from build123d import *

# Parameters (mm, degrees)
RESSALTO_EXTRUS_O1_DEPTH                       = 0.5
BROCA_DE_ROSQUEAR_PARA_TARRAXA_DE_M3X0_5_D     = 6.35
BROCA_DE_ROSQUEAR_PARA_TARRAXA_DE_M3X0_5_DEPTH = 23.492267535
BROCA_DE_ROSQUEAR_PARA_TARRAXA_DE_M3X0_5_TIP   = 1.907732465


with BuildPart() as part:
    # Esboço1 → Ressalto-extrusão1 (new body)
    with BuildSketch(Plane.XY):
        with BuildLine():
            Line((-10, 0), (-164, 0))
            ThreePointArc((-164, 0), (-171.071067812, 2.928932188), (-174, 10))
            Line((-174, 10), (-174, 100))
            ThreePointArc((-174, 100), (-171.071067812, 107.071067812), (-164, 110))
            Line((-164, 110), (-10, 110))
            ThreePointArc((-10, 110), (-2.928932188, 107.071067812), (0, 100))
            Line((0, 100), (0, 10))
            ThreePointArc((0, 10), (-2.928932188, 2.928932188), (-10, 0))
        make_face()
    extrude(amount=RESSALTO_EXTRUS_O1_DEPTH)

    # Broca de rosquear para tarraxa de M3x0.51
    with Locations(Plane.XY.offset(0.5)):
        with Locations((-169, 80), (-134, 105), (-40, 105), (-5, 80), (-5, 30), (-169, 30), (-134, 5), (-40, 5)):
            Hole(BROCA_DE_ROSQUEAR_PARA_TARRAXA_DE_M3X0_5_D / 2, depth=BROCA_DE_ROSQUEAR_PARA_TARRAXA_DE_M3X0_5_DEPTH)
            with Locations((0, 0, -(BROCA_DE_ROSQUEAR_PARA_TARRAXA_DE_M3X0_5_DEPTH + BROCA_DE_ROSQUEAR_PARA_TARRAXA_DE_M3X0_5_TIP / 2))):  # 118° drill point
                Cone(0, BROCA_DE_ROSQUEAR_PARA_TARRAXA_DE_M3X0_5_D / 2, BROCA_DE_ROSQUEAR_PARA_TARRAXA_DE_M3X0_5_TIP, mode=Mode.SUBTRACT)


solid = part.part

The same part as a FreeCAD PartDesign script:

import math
import FreeCAD as App
import Part
import Sketcher

V = App.Vector

doc = App.newDocument("Part")
body = doc.addObject("PartDesign::Body", "Body")

# Sketch on XY plane
sketch1 = body.newObject("Sketcher::SketchObject", "Sketch")
sketch1.AttachmentSupport = (doc.getObject("XY_Plane"), [""])
sketch1.MapMode = "FlatFace"
sketch1.addGeometry([
    Part.LineSegment(V(-164, 0, 0), V(-10, 0, 0)),  # 0
    Part.ArcOfCircle(Part.Circle(V(-10, 10, 0), V(0, 0, 1), 10), math.radians(-90), math.radians(0)),  # 1
    Part.LineSegment(V(0, 10, 0), V(0, 100, 0)),  # 2
    Part.ArcOfCircle(Part.Circle(V(-10, 100, 0), V(0, 0, 1), 10), math.radians(0), math.radians(90)),  # 3
    Part.LineSegment(V(-10, 110, 0), V(-164, 110, 0)),  # 4
    Part.ArcOfCircle(Part.Circle(V(-164, 100, 0), V(0, 0, 1), 10), math.radians(90), math.radians(180)),  # 5
    Part.LineSegment(V(-174, 100, 0), V(-174, 10, 0)),  # 6
    Part.ArcOfCircle(Part.Circle(V(-164, 10, 0), V(0, 0, 1), 10), math.radians(180), math.radians(270)),  # 7
], False)
sketch1.addConstraint([
    Sketcher.Constraint("Tangent", 0, 2, 1, 1),
    Sketcher.Constraint("Tangent", 1, 2, 2, 1),
    Sketcher.Constraint("Tangent", 2, 2, 3, 1),
    Sketcher.Constraint("Tangent", 3, 2, 4, 1),
    Sketcher.Constraint("Tangent", 4, 2, 5, 1),
    Sketcher.Constraint("Tangent", 5, 2, 6, 1),
    Sketcher.Constraint("Tangent", 6, 2, 7, 1),
    Sketcher.Constraint("Tangent", 7, 2, 0, 1),
    Sketcher.Constraint("Horizontal", 0),
    Sketcher.Constraint("Vertical", 2),
    Sketcher.Constraint("Horizontal", 4),
    Sketcher.Constraint("Vertical", 6),
    Sketcher.Constraint("Equal", 1, 3),
    Sketcher.Constraint("Equal", 3, 5),
    Sketcher.Constraint("Equal", 5, 7),
    Sketcher.Constraint("PointOnObject", 0, 2, -1),
    Sketcher.Constraint("PointOnObject", 1, 2, -2),
    Sketcher.Constraint("Radius", 1, 10.0),
    Sketcher.Constraint("DistanceX", 0, 1, 0, 2, 154.0),
    Sketcher.Constraint("DistanceY", 2, 1, 2, 2, 90.0),
])
pad1 = body.newObject("PartDesign::Pad", "Pad")
pad1.Profile = sketch1
pad1.Length = 0.5

# Sketch on XY plane
sketch2 = body.newObject("Sketcher::SketchObject", "Sketch001")
sketch2.AttachmentSupport = (doc.getObject("XY_Plane"), [""])
sketch2.MapMode = "FlatFace"
sketch2.AttachmentOffset = App.Placement(V(0, 0, 0.5), App.Rotation())
sketch2.addGeometry([
    Part.Circle(V(-169, 80, 0), V(0, 0, 1), 3.175),  # 0
    Part.Circle(V(-134, 105, 0), V(0, 0, 1), 3.175),  # 1
    Part.Circle(V(-40, 105, 0), V(0, 0, 1), 3.175),  # 2
    Part.Circle(V(-5, 80, 0), V(0, 0, 1), 3.175),  # 3
    Part.Circle(V(-5, 30, 0), V(0, 0, 1), 3.175),  # 4
    Part.Circle(V(-169, 30, 0), V(0, 0, 1), 3.175),  # 5
    Part.Circle(V(-134, 5, 0), V(0, 0, 1), 3.175),  # 6
    Part.Circle(V(-40, 5, 0), V(0, 0, 1), 3.175),  # 7
], False)
sketch2.addConstraint([
    Sketcher.Constraint("Equal", 0, 1),
    Sketcher.Constraint("Equal", 1, 2),
    Sketcher.Constraint("Equal", 2, 3),
    Sketcher.Constraint("Equal", 3, 4),
    Sketcher.Constraint("Equal", 4, 5),
    Sketcher.Constraint("Equal", 5, 6),
    Sketcher.Constraint("Equal", 6, 7),
    Sketcher.Constraint("Horizontal", 1, 3, 2, 3),
    Sketcher.Constraint("Horizontal", 0, 3, 3, 3),
    Sketcher.Constraint("Horizontal", 4, 3, 5, 3),
    Sketcher.Constraint("Horizontal", 6, 3, 7, 3),
    Sketcher.Constraint("Vertical", 3, 3, 4, 3),
    Sketcher.Constraint("Vertical", 0, 3, 5, 3),
    Sketcher.Constraint("Vertical", 1, 3, 6, 3),
    Sketcher.Constraint("Vertical", 2, 3, 7, 3),
    Sketcher.Constraint("Diameter", 0, 6.35),
    Sketcher.Constraint("DistanceX", 0, 3, -1, 1, 169.0),
    Sketcher.Constraint("DistanceY", -1, 1, 0, 3, 80.0),
    Sketcher.Constraint("DistanceX", 1, 3, -1, 1, 134.0),
    Sketcher.Constraint("DistanceY", -1, 1, 1, 3, 105.0),
    Sketcher.Constraint("DistanceX", 2, 3, -1, 1, 40.0),
    Sketcher.Constraint("DistanceX", 3, 3, -1, 1, 5.0),
    Sketcher.Constraint("DistanceY", -1, 1, 4, 3, 30.0),
    Sketcher.Constraint("DistanceY", -1, 1, 6, 3, 5.0),
])
doc.recompute()
hole = body.newObject("PartDesign::Hole", "Hole")
hole.Profile = sketch2
hole.ThreadType = "None"
hole.Diameter = 6.35
hole.DepthType = "Dimension"
hole.Depth = 23.492268
hole.DrillPoint = "Angled"
hole.DrillPointAngle = 118

doc.recompute()
